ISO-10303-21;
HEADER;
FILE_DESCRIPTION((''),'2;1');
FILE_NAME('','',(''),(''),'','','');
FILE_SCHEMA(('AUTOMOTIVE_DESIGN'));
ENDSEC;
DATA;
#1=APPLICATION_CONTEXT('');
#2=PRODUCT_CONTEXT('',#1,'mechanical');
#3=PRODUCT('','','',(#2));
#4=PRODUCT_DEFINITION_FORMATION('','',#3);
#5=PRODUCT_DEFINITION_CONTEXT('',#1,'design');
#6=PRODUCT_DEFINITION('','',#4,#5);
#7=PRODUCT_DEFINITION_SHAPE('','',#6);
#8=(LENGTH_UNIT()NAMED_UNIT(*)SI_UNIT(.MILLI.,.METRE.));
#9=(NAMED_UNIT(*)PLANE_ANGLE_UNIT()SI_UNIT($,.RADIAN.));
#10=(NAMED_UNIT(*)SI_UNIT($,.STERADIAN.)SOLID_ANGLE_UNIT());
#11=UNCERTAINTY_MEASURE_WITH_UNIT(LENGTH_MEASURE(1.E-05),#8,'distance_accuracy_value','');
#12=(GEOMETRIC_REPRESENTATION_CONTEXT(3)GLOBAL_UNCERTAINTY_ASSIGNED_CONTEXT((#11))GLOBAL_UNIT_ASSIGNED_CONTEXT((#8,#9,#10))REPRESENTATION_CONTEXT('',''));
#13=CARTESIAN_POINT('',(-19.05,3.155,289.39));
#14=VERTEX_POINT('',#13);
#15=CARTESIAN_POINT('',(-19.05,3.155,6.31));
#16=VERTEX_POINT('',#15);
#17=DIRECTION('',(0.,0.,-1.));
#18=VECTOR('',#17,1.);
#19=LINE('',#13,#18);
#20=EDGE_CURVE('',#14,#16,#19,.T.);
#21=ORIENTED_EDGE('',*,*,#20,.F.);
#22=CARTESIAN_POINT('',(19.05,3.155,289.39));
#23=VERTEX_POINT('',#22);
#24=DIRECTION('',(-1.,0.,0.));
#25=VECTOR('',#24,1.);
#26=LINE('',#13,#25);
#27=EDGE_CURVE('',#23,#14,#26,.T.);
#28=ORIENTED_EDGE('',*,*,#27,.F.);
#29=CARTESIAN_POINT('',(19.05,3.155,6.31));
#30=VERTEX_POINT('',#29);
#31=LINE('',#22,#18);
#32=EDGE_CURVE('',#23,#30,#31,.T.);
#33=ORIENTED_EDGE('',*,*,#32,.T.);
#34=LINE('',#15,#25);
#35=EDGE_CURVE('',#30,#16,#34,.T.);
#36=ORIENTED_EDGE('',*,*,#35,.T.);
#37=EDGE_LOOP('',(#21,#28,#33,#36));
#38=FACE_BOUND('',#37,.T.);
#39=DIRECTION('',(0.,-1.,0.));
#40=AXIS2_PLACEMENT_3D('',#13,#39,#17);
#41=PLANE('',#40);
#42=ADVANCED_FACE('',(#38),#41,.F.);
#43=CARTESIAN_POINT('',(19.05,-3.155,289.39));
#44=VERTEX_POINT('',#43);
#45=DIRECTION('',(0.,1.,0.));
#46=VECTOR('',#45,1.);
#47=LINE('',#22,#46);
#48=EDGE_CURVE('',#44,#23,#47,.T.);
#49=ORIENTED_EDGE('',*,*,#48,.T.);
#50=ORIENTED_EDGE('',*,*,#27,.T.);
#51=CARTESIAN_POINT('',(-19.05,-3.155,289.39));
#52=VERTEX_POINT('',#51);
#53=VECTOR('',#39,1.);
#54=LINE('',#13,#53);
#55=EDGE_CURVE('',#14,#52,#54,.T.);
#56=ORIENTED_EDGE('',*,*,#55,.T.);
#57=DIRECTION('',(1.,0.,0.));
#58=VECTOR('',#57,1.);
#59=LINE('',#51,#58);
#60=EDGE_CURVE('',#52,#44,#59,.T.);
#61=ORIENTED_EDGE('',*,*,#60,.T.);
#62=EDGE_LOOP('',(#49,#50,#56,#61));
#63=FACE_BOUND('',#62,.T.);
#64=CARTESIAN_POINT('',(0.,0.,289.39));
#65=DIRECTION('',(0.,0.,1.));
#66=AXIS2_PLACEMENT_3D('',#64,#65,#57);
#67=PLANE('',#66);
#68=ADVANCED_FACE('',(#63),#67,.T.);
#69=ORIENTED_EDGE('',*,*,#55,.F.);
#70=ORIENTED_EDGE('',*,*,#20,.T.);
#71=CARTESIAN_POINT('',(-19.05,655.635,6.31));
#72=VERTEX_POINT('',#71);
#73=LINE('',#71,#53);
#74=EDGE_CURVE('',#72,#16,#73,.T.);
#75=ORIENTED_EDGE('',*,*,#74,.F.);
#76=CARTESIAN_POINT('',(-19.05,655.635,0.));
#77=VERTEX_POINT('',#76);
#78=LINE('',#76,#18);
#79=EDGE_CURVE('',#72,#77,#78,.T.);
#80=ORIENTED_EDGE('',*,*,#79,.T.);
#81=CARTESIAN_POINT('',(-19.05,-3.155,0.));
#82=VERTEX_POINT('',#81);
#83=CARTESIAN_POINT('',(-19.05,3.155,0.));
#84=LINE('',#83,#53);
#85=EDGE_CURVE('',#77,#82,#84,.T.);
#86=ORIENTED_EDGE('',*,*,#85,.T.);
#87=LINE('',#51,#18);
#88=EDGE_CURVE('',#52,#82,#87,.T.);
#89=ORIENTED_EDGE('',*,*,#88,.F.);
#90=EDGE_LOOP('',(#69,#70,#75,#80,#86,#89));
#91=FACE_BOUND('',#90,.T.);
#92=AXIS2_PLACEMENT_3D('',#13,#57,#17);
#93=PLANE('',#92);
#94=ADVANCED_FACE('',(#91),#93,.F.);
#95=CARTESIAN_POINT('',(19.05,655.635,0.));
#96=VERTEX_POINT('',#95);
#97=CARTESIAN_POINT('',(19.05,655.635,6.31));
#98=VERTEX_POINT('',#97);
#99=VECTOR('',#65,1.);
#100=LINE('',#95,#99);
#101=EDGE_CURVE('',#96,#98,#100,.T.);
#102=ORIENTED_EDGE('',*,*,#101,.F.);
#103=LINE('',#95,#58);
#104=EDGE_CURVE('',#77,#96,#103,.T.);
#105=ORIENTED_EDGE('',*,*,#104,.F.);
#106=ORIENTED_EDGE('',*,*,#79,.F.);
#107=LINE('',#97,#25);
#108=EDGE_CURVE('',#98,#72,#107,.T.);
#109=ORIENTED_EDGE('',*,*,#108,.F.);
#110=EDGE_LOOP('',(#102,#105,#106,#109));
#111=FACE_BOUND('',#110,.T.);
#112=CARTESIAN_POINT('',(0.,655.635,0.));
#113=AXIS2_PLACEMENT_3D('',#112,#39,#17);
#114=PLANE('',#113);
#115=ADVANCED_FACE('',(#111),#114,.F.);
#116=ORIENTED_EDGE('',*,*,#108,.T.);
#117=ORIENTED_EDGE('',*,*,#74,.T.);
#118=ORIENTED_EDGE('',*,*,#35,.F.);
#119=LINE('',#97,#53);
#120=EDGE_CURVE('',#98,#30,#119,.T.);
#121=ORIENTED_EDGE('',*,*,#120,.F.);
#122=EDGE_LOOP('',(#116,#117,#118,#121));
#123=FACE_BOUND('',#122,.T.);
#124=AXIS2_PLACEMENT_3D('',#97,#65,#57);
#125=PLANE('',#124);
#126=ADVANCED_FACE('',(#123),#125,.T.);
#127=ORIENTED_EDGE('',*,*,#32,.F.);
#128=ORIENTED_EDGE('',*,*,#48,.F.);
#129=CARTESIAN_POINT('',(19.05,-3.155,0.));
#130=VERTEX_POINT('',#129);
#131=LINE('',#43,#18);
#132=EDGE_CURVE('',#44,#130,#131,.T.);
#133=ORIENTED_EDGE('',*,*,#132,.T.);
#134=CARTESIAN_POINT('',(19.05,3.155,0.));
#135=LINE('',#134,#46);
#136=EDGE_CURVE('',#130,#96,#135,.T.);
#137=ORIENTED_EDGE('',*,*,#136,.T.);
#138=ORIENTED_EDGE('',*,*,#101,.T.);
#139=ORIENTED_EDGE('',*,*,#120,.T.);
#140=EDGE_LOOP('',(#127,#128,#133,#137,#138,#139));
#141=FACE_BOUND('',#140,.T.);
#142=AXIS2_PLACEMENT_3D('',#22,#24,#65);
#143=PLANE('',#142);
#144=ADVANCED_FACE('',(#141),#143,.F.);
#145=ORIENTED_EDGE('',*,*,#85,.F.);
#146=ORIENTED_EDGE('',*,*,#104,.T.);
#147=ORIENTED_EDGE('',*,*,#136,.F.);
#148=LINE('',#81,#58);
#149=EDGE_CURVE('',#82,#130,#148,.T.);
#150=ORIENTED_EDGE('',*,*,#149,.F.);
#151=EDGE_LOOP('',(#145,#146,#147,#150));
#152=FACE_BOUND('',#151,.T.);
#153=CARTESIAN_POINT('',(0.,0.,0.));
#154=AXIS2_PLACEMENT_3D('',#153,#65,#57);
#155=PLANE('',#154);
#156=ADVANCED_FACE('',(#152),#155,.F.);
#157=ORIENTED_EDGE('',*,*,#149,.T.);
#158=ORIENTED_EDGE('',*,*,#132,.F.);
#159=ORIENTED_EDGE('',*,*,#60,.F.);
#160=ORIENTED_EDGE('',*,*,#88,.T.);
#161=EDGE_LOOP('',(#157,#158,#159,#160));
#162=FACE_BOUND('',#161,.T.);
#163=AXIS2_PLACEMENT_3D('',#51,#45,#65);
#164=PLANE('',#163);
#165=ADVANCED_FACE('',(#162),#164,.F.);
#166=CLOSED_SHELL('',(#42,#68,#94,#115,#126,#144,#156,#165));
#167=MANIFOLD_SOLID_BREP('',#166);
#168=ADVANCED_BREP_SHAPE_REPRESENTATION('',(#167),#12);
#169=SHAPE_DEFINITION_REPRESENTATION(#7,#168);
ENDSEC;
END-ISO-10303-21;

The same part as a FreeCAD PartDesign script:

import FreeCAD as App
import Part
import Sketcher
Q = App.Units.Quantity

doc = App.newDocument("Part")
body = doc.addObject("PartDesign::Body", "Body")

# Sketch on XY plane
sketch1 = body.newObject("Sketcher::SketchObject", "Sketch")
sketch1.AttachmentSupport = (doc.getObject("XY_Plane"), [""])
sketch1.MapMode = "FlatFace"
sketch1.addGeometry([
    Part.LineSegment(App.Vector(-19, 3, 0), App.Vector(-19, -3, 0)),
    Part.LineSegment(App.Vector(-19, -3, 0), App.Vector(19, -3, 0)),
    Part.LineSegment(App.Vector(19, -3, 0), App.Vector(19, 3, 0)),
    Part.LineSegment(App.Vector(19, 3, 0), App.Vector(-19, 3, 0)),
], False)
sketch1.addConstraint([
    Sketcher.Constraint("Coincident", 0, 2, 1, 1),
    Sketcher.Constraint("Coincident", 1, 2, 2, 1),
    Sketcher.Constraint("Coincident", 2, 2, 3, 1),
    Sketcher.Constraint("Coincident", 3, 2, 0, 1),
    Sketcher.Constraint("Vertical", 0),
    Sketcher.Constraint("Horizontal", 1),
    Sketcher.Constraint("Vertical", 2),
    Sketcher.Constraint("Horizontal", 3),
    Sketcher.Constraint("Symmetric", 0, 2, 2, 2, -1, 1),
    Sketcher.Constraint("DistanceX", 1, 1, 1, 2, Q("1.5 in")),
    Sketcher.Constraint("DistanceY", 0, 2, 0, 1, Q("6.31 mm")),
])
pad1 = body.newObject("PartDesign::Pad", "Pad")
pad1.Profile = sketch1
pad1.Length = 289.39

# Sketch on XZ plane
sketch2 = body.newObject("Sketcher::SketchObject", "Sketch001")
sketch2.AttachmentSupport = (doc.getObject("XZ_Plane"), [""])
sketch2.MapMode = "FlatFace"
sketch2.AttachmentOffset = App.Placement(App.Vector(0, 0, 3.155), App.Rotation())
sketch2.addGeometry([
    Part.LineSegment(App.Vector(-19, 6, 0), App.Vector(-19, 0, 0)),
    Part.LineSegment(App.Vector(-19, 0, 0), App.Vector(19, 0, 0)),
    Part.LineSegment(App.Vector(19, 0, 0), App.Vector(19, 6, 0)),
    Part.LineSegment(App.Vector(19, 6, 0), App.Vector(-19, 6, 0)),
], False)
sketch2.addConstraint([
    Sketcher.Constraint("Coincident", 0, 2, 1, 1),
    Sketcher.Constraint("Coincident", 1, 2, 2, 1),
    Sketcher.Constraint("Coincident", 2, 2, 3, 1),
    Sketcher.Constraint("Coincident", 3, 2, 0, 1),
    Sketcher.Constraint("Vertical", 0),
    Sketcher.Constraint("Horizontal", 1),
    Sketcher.Constraint("Vertical", 2),
    Sketcher.Constraint("Horizontal", 3),
    Sketcher.Constraint("Symmetric", 0, 2, 1, 2, -1, 1),
    Sketcher.Constraint("DistanceX", 1, 1, 1, 2, Q("1.5 in")),
    Sketcher.Constraint("DistanceY", 0, 2, 0, 1, Q("6.31 mm")),
])
pad2 = body.newObject("PartDesign::Pad", "Pad001")
pad2.Profile = sketch2
pad2.Length = 658.79
pad2.Reversed = True

doc.recompute()
